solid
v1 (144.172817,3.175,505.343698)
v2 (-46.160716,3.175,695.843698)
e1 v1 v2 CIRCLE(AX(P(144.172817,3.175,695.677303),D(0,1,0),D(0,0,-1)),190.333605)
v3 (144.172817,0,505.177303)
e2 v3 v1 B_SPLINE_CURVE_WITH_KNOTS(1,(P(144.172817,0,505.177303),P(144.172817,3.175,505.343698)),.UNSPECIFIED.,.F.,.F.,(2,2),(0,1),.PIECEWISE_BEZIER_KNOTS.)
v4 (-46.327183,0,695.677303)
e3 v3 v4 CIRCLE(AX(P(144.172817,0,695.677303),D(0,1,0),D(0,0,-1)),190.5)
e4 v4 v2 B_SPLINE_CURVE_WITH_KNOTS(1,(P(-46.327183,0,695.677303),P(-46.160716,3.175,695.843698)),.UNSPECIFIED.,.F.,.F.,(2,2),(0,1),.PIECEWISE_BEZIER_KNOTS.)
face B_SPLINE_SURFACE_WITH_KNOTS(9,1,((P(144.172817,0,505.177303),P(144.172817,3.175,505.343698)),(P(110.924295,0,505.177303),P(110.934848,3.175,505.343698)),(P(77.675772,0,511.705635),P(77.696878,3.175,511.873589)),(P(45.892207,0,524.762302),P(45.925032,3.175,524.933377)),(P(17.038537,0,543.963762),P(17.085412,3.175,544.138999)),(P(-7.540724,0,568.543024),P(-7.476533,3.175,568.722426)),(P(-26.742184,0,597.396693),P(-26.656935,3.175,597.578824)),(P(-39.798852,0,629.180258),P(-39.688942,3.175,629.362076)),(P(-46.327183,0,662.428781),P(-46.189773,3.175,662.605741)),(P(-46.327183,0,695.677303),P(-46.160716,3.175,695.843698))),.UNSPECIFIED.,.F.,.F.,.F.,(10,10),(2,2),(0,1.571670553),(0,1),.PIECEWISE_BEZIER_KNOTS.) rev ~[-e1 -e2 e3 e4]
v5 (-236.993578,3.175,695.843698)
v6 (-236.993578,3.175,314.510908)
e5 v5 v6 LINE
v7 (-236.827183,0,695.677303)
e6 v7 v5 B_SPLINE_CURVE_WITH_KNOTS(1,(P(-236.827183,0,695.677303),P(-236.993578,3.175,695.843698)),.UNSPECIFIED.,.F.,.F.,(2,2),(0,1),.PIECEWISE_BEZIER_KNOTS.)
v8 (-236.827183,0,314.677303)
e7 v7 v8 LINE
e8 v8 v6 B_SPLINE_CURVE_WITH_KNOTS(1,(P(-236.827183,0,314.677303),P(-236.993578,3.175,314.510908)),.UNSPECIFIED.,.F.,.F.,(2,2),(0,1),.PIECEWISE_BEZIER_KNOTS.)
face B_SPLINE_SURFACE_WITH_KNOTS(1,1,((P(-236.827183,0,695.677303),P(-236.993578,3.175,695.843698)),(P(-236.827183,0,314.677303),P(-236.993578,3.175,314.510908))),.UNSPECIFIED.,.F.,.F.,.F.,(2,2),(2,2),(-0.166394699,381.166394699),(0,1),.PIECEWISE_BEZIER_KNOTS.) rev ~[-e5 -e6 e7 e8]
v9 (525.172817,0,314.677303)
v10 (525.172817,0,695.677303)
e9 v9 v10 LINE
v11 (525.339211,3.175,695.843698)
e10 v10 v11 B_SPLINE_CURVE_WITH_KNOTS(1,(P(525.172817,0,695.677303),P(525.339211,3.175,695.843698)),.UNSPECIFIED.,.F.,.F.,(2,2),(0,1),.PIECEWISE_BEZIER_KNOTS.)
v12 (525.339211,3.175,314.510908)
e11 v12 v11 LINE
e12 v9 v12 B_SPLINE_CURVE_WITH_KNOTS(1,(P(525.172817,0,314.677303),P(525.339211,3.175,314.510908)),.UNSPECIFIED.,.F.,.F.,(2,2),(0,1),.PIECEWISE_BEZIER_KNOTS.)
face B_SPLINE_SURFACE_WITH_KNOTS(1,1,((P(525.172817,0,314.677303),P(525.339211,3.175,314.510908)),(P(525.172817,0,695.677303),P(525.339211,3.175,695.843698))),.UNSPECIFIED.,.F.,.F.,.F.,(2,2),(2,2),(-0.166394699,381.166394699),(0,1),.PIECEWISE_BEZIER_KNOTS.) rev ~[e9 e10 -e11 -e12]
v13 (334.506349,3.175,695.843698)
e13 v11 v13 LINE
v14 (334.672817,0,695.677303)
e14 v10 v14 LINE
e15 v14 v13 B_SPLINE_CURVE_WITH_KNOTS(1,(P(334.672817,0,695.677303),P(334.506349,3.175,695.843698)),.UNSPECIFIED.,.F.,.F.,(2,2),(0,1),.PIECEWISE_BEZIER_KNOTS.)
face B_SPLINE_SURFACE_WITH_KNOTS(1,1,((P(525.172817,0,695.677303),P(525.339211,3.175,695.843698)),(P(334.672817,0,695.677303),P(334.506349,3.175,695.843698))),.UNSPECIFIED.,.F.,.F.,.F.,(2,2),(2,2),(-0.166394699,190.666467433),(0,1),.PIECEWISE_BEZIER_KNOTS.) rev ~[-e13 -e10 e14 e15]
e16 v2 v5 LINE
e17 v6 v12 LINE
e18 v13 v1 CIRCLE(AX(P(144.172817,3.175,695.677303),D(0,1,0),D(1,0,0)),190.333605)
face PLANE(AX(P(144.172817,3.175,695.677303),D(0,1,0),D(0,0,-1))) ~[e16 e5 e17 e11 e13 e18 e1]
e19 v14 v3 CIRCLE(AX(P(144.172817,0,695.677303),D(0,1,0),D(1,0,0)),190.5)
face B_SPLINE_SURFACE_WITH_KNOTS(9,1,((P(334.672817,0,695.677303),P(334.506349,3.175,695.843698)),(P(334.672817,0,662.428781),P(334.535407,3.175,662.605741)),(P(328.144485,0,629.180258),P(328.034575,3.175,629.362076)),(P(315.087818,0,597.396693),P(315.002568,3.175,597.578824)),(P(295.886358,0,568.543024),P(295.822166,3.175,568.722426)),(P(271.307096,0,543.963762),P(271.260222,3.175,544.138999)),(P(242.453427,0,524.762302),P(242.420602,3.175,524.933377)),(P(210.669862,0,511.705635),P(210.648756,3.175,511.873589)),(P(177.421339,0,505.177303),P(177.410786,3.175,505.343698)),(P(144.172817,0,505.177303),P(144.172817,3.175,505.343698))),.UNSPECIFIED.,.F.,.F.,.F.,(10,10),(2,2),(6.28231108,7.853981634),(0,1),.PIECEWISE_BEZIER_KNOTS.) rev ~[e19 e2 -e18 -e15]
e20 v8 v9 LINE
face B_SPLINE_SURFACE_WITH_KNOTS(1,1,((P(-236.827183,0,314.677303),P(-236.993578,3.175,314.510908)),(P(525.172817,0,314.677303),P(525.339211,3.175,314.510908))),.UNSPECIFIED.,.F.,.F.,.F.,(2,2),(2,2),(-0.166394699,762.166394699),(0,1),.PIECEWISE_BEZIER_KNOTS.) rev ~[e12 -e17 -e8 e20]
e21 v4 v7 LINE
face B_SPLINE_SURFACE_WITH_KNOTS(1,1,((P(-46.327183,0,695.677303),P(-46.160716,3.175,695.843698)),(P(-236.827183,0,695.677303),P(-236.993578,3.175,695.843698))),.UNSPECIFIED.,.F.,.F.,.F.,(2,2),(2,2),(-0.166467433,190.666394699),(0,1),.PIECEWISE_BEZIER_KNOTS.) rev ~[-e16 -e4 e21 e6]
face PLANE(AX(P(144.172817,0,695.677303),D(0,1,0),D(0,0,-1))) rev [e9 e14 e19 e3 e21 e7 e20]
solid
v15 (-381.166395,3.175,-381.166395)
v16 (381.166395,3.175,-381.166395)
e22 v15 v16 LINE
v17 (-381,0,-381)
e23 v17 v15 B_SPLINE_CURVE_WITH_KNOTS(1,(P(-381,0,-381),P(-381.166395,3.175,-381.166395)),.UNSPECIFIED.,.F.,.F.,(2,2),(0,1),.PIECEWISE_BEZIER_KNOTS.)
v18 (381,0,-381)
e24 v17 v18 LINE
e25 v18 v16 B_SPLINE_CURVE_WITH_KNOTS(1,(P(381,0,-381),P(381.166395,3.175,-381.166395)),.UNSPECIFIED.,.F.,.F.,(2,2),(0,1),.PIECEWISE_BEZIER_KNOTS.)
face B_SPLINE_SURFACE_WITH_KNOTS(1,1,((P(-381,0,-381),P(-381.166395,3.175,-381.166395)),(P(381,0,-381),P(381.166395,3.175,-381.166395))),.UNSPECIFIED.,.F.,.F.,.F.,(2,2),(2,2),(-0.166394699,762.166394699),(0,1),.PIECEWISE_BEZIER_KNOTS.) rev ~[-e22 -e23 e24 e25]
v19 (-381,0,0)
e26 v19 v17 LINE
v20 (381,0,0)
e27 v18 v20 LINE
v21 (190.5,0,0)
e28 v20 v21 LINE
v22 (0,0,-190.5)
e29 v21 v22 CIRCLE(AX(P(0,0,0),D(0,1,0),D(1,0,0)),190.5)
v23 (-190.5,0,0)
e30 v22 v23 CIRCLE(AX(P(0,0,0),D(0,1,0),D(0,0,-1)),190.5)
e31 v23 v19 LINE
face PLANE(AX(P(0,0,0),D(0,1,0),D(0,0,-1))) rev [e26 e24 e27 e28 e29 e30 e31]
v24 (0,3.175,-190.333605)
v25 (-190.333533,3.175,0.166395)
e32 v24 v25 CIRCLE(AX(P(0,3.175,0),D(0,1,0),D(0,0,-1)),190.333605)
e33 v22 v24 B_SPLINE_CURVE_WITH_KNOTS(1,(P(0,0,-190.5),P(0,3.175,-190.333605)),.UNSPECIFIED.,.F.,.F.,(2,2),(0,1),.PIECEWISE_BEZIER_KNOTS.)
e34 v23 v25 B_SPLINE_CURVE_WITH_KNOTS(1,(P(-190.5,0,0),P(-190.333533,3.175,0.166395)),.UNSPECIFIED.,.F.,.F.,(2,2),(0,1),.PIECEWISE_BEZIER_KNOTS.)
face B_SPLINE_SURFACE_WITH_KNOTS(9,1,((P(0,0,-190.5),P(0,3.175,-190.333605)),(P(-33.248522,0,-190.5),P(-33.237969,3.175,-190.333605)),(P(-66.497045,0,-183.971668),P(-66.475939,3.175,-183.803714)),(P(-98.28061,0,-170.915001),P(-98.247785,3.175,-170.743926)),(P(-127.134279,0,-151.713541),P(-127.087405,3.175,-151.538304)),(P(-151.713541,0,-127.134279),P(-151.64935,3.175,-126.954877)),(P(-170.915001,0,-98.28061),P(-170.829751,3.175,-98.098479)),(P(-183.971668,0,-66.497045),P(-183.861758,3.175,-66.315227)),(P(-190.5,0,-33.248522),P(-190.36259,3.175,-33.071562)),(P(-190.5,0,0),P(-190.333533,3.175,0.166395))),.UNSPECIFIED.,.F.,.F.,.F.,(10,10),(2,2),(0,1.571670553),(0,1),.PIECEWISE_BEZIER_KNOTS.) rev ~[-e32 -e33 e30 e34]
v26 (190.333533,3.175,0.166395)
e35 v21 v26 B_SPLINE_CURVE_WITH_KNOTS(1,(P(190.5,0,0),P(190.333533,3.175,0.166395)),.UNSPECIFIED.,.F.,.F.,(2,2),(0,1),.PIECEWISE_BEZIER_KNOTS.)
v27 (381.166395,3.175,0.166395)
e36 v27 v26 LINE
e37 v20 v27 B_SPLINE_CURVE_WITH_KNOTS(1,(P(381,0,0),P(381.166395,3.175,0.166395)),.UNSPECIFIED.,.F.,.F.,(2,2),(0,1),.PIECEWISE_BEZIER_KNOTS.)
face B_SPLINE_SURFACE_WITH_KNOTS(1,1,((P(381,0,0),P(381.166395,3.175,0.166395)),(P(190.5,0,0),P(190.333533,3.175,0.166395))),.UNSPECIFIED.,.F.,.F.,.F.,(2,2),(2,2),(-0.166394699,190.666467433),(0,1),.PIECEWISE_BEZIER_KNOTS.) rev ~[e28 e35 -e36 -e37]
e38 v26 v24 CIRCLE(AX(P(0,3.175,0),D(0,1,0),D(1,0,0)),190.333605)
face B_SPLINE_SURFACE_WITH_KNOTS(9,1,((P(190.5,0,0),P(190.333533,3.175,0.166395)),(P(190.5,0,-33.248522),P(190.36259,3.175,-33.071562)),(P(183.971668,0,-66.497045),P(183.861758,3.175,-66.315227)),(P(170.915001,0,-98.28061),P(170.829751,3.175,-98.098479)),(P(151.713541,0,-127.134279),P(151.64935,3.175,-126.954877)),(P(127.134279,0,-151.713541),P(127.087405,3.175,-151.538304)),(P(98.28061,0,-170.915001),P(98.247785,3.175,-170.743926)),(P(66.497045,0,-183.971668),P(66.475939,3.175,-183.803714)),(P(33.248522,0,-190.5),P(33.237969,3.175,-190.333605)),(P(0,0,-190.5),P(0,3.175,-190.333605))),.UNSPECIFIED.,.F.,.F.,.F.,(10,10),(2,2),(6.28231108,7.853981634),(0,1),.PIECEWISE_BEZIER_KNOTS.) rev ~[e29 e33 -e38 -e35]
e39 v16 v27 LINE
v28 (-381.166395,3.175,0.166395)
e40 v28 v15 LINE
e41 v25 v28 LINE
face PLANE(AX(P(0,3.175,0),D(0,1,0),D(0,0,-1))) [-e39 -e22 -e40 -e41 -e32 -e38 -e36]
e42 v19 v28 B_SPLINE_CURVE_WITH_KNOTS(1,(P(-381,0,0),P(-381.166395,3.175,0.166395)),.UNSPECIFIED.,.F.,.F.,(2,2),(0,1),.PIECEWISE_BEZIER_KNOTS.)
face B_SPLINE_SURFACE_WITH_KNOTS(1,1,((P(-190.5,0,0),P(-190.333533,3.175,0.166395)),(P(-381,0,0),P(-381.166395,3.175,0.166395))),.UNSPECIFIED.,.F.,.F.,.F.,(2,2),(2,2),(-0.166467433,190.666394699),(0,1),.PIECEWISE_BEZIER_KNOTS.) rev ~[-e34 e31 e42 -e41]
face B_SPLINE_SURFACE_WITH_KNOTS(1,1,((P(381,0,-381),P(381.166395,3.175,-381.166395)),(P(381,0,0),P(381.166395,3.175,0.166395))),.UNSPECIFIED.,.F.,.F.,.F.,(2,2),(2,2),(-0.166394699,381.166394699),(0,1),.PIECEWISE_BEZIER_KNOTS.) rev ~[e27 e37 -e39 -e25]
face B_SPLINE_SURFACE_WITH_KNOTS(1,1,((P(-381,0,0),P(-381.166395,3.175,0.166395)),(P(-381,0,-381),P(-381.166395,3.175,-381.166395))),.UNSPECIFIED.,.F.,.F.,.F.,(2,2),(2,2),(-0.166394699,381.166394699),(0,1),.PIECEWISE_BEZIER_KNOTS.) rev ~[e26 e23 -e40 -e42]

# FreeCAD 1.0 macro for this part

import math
import FreeCAD as App
import Part
import Sketcher

V = App.Vector
Q = App.Units.Quantity

doc = App.newDocument("Part")
body = doc.addObject("PartDesign::Body", "Body")

# Sketch on XZ plane
sketch1 = body.newObject("Sketcher::SketchObject", "Sketch")
sketch1.AttachmentSupport = (doc.getObject("XZ_Plane"), [""])
sketch1.MapMode = "FlatFace"
sketch1.addGeometry([
    Part.ArcOfCircle(Part.Circle(V(144.172817, 695.677303, 0), V(0, 0, 1), 190.5), math.radians(180), math.radians(270)),  # 0
    Part.LineSegment(V(-46.327183, 695.677303, 0), V(-236.827183, 695.677303, 0)),  # 1
    Part.LineSegment(V(-236.827183, 695.677303, 0), V(-236.827183, 314.677303, 0)),  # 2
    Part.LineSegment(V(-236.827183, 314.677303, 0), V(525.172817, 314.677303, 0)),  # 3
    Part.LineSegment(V(525.172817, 314.677303, 0), V(525.172817, 695.677303, 0)),  # 4
    Part.LineSegment(V(525.172817, 695.677303, 0), V(334.672817, 695.677303, 0)),  # 5
    Part.ArcOfCircle(Part.Circle(V(144.172817, 695.677303, 0), V(0, 0, 1), 190.5), math.radians(-90), math.radians(0)),  # 6
], False)
sketch1.addConstraint([
    Sketcher.Constraint("Coincident", 0, 1, 1, 1),
    Sketcher.Constraint("Coincident", 1, 2, 2, 1),
    Sketcher.Constraint("Coincident", 2, 2, 3, 1),
    Sketcher.Constraint("Coincident", 3, 2, 4, 1),
    Sketcher.Constraint("Coincident", 4, 2, 5, 1),
    Sketcher.Constraint("Coincident", 5, 2, 6, 2),
    Sketcher.Constraint("Tangent", 6, 1, 0, 2),
    Sketcher.Constraint("Horizontal", 1),
    Sketcher.Constraint("Vertical", 2),
    Sketcher.Constraint("Horizontal", 3),
    Sketcher.Constraint("Vertical", 4),
    Sketcher.Constraint("Horizontal", 5),
    Sketcher.Constraint("Equal", 0, 6),
    Sketcher.Constraint("Horizontal", 6, 3, 0, 1),
    Sketcher.Constraint("Horizontal", 1, 2, 4, 2),
    Sketcher.Constraint("Vertical", 0, 3, 6, 1),
    Sketcher.Constraint("Equal", 1, 5),
    Sketcher.Constraint("Radius", 0, Q("7.5 in")),
    Sketcher.Constraint("DistanceX", 3, 1, 3, 2, Q("30 in")),
    Sketcher.Constraint("DistanceY", 2, 2, 2, 1, Q("15 in")),
    Sketcher.Constraint("DistanceX", -1, 1, 0, 3, Q("144.172817 mm")),
    Sketcher.Constraint("DistanceY", -1, 1, 0, 3, Q("695.677303 mm")),
])
pad1 = body.newObject("PartDesign::Pad", "Pad")
pad1.Profile = sketch1
pad1.Length = Q("0.125 in")
pad1.Reversed = True
pad1.TaperAngle = 3
body2 = doc.addObject("PartDesign::Body", "Body001")

# Sketch on XZ plane
sketch2 = body2.newObject("Sketcher::SketchObject", "Sketch001")
sketch2.AttachmentSupport = (doc.getObject("XZ_Plane001"), [""])
sketch2.MapMode = "FlatFace"
sketch2.addGeometry([
    Part.ArcOfCircle(Part.Circle(V(0, 0, 0), V(0, 0, 1), 190.5), math.radians(180), math.radians(270)),  # 0
    Part.LineSegment(V(-190.5, 0, 0), V(-381, 0, 0)),  # 1
    Part.LineSegment(V(-381, 0, 0), V(-381, -381, 0)),  # 2
    Part.LineSegment(V(-381, -381, 0), V(381, -381, 0)),  # 3
    Part.LineSegment(V(381, -381, 0), V(381, 0, 0)),  # 4
    Part.LineSegment(V(381, 0, 0), V(190.5, 0, 0)),  # 5
    Part.ArcOfCircle(Part.Circle(V(0, 0, 0), V(0, 0, 1), 190.5), math.radians(-90), math.radians(0)),  # 6
], False)
sketch2.addConstraint([
    Sketcher.Constraint("Coincident", 0, 1, 1, 1),
    Sketcher.Constraint("Coincident", 1, 2, 2, 1),
    Sketcher.Constraint("Coincident", 2, 2, 3, 1),
    Sketcher.Constraint("Coincident", 3, 2, 4, 1),
    Sketcher.Constraint("Coincident", 4, 2, 5, 1),
    Sketcher.Constraint("Coincident", 5, 2, 6, 2),
    Sketcher.Constraint("Tangent", 6, 1, 0, 2),
    Sketcher.Constraint("Horizontal", 1),
    Sketcher.Constraint("Vertical", 2),
    Sketcher.Constraint("Horizontal", 3),
    Sketcher.Constraint("Vertical", 4),
    Sketcher.Constraint("Horizontal", 5),
    Sketcher.Constraint("Coincident", 0, 3, -1, 1),
    Sketcher.Constraint("Equal", 0, 6),
    Sketcher.Constraint("Symmetric", 1, 2, 4, 2, -1, 1),
    Sketcher.Constraint("PointOnObject", 0, 1, -1),
    Sketcher.Constraint("PointOnObject", 6, 1, -2),
    Sketcher.Constraint("Radius", 0, Q("7.5 in")),
    Sketcher.Constraint("DistanceX", 3, 1, 3, 2, Q("30 in")),
    Sketcher.Constraint("DistanceY", 2, 2, 2, 1, Q("15 in")),
])
pad2 = body2.newObject("PartDesign::Pad", "Pad001")
pad2.Profile = sketch2
pad2.Length = Q("0.125 in")
pad2.Reversed = True
pad2.TaperAngle = 3

# Sketch on XZ plane
sketch3 = body2.newObject("Sketcher::SketchObject", "Sketch002")
sketch3.AttachmentSupport = (doc.getObject("XZ_Plane001"), [""])
sketch3.MapMode = "FlatFace"
sketch3.addGeometry([
    Part.ArcOfCircle(Part.Circle(V(0, 0, 0), V(0, 0, 1), 190.5), math.radians(180), math.radians(270)),  # 0
    Part.LineSegment(V(-190.5, 0, 0), V(-381, 0, 0)),  # 1
    Part.LineSegment(V(-381, 0, 0), V(-381, -381, 0)),  # 2
    Part.LineSegment(V(-381, -381, 0), V(381, -381, 0)),  # 3
    Part.LineSegment(V(381, -381, 0), V(381, 0, 0)),  # 4
    Part.LineSegment(V(381, 0, 0), V(190.5, 0, 0)),  # 5
    Part.ArcOfCircle(Part.Circle(V(0, 0, 0), V(0, 0, 1), 190.5), math.radians(-90), math.radians(0)),  # 6
], False)
sketch3.addConstraint([
    Sketcher.Constraint("Coincident", 0, 1, 1, 1),
    Sketcher.Constraint("Coincident", 1, 2, 2, 1),
    Sketcher.Constraint("Coincident", 2, 2, 3, 1),
    Sketcher.Constraint("Coincident", 3, 2, 4, 1),
    Sketcher.Constraint("Coincident", 4, 2, 5, 1),
    Sketcher.Constraint("Coincident", 5, 2, 6, 2),
    Sketcher.Constraint("Tangent", 6, 1, 0, 2),
    Sketcher.Constraint("Horizontal", 1),
    Sketcher.Constraint("Vertical", 2),
    Sketcher.Constraint("Horizontal", 3),
    Sketcher.Constraint("Vertical", 4),
    Sketcher.Constraint("Horizontal", 5),
    Sketcher.Constraint("Coincident", 0, 3, -1, 1),
    Sketcher.Constraint("Equal", 0, 6),
    Sketcher.Constraint("Symmetric", 1, 2, 4, 2, -1, 1),
    Sketcher.Constraint("PointOnObject", 0, 1, -1),
    Sketcher.Constraint("PointOnObject", 6, 1, -2),
    Sketcher.Constraint("Radius", 0, Q("7.5 in")),
    Sketcher.Constraint("DistanceX", 3, 1, 3, 2, Q("30 in")),
    Sketcher.Constraint("DistanceY", 2, 2, 2, 1, Q("15 in")),
])
pad3 = body2.newObject("PartDesign::Pad", "Pad002")
pad3.Profile = sketch3
pad3.Length = Q("0.125 in")
pad3.Reversed = True

doc.recompute()
